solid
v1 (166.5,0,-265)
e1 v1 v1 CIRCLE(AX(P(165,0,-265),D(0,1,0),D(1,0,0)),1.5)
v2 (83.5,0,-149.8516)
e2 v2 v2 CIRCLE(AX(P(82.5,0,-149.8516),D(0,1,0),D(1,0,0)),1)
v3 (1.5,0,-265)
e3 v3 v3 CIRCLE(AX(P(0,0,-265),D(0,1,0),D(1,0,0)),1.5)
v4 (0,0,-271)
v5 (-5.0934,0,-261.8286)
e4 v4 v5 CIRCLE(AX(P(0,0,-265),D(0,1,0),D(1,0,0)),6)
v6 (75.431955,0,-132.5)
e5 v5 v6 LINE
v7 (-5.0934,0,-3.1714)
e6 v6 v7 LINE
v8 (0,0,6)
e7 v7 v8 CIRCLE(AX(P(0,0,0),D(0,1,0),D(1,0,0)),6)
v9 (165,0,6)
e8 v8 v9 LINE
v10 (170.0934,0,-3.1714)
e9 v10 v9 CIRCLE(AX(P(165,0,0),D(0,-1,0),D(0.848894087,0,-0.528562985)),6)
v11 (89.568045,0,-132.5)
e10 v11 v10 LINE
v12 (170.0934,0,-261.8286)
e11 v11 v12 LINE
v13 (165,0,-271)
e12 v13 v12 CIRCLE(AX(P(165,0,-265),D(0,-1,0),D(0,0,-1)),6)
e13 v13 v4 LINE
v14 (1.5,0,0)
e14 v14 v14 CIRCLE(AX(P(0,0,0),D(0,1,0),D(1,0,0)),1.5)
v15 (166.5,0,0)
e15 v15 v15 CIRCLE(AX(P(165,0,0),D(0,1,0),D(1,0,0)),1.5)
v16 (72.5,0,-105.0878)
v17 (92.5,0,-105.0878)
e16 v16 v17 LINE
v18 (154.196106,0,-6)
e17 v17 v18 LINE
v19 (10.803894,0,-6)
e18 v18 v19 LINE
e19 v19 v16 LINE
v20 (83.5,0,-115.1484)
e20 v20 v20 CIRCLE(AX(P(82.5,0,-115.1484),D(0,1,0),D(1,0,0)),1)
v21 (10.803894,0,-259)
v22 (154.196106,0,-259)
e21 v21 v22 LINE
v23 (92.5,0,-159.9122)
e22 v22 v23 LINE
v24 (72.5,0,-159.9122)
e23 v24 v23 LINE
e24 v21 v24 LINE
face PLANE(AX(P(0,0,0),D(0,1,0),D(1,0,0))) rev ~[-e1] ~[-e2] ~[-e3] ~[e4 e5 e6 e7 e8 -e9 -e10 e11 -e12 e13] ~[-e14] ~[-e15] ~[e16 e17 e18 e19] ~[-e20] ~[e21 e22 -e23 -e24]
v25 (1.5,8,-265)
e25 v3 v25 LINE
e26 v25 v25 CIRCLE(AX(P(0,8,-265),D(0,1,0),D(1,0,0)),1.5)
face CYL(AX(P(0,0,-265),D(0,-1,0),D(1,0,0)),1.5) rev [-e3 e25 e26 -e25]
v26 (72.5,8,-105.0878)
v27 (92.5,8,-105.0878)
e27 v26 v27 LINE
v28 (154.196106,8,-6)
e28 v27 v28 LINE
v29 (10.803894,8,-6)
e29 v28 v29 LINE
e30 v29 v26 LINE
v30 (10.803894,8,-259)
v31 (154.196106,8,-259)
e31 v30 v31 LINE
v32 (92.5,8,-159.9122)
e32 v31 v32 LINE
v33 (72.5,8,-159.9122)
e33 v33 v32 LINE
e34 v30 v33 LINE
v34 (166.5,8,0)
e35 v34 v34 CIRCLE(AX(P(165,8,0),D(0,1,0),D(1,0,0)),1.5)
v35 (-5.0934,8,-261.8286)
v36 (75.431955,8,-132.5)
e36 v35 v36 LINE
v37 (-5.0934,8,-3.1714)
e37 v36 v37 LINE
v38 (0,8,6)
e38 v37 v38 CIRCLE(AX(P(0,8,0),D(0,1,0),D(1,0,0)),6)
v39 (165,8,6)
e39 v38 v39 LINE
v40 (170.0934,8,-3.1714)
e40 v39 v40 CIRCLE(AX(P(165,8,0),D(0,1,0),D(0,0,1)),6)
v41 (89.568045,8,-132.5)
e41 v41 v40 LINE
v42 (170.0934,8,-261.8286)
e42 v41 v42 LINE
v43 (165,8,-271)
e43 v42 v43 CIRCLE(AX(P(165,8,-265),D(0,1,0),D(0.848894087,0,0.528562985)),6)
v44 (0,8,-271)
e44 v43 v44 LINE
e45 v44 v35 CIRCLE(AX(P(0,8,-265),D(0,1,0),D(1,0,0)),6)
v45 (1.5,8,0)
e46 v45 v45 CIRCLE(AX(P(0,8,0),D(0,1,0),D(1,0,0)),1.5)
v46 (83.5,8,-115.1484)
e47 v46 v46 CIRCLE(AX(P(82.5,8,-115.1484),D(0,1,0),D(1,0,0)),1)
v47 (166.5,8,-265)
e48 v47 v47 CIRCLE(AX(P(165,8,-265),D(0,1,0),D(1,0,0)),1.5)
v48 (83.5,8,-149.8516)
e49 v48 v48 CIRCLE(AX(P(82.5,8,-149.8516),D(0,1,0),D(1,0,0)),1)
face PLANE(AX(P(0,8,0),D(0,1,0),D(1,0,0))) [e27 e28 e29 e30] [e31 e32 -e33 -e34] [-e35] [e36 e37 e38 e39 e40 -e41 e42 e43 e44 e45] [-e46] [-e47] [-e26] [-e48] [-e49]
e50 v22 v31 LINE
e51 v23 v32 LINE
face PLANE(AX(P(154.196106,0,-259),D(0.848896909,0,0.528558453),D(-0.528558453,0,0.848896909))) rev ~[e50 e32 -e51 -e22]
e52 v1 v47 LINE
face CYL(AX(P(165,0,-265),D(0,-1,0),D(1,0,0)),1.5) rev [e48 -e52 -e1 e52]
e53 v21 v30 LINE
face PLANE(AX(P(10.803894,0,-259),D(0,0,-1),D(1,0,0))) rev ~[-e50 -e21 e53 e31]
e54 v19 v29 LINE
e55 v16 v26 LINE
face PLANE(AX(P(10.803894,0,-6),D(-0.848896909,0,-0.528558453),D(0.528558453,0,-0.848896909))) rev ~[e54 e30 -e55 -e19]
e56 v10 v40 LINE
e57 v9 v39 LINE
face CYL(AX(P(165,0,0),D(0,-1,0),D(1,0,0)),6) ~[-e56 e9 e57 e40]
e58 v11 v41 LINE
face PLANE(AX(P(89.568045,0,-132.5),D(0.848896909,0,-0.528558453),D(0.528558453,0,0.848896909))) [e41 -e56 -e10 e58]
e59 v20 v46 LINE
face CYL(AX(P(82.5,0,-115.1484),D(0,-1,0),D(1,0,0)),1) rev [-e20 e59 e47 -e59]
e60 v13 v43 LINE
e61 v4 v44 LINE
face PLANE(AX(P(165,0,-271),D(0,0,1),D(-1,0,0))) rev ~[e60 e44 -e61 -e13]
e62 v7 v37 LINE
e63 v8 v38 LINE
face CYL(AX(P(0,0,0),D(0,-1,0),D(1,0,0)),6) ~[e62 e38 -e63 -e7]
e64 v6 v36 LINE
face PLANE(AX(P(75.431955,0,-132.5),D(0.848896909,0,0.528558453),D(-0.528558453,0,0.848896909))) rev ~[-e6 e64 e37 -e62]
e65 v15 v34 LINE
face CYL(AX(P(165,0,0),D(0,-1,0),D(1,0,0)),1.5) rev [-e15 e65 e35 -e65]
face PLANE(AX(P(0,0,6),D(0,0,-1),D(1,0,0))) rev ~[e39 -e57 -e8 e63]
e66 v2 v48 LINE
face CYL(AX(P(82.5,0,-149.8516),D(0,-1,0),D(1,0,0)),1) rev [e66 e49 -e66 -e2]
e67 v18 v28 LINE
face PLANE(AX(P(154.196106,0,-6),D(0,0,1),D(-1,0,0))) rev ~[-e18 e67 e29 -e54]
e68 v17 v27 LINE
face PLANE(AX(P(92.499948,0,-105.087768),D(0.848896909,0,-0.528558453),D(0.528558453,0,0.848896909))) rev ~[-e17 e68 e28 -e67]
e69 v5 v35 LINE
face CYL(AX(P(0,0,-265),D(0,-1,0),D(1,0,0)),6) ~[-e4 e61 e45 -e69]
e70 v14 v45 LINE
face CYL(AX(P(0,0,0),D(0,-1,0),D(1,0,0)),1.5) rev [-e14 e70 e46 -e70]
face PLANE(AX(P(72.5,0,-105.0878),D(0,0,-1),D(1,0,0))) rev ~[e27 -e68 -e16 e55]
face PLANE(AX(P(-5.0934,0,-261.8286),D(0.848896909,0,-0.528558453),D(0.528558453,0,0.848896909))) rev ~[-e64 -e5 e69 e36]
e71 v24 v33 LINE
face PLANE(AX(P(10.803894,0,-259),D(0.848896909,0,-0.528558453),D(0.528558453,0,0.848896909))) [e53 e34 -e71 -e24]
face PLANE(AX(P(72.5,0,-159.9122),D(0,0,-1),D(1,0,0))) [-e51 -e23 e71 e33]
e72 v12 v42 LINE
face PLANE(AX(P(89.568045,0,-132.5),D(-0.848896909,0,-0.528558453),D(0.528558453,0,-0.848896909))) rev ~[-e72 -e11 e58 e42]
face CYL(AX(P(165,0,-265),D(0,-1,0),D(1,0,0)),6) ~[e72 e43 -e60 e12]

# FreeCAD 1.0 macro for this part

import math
import FreeCAD as App
import Part
import Sketcher

V = App.Vector

doc = App.newDocument("Part")
body = doc.addObject("PartDesign::Body", "Body")

sketch1 = body.newObject("Sketcher::SketchObject", "Sketch")
sketch1.AttachmentSupport = (doc.getObject("XZ_Plane"), [""])
sketch1.MapMode = "FlatFace"
sketch1.addGeometry(Part.ArcOfCircle(Part.Circle(V(0, 0, 0), V(0, 0, 1), 6), math.radians(90), math.radians(211.908413)), False)
sketch1.addGeometry(Part.LineSegment(V(0, 6, 0), V(165, 6, 0)), False)
sketch1.addGeometry(Part.ArcOfCircle(Part.Circle(V(165, 0, 0), V(0, 0, 1), 6), math.radians(-31.908413), math.radians(90)), False)
sketch1.addGeometry(Part.LineSegment(V(170.0934, -3.1714, 0), V(89.568045, -132.5, 0)), False)
sketch1.addGeometry(Part.LineSegment(V(89.568045, -132.5, 0), V(170.0934, -261.8286, 0)), False)
sketch1.addGeometry(Part.ArcOfCircle(Part.Circle(V(165, -265, 0), V(0, 0, 1), 6), math.radians(-90), math.radians(31.908413)), False)
sketch1.addGeometry(Part.LineSegment(V(165, -271, 0), V(0, -271, 0)), False)
sketch1.addGeometry(Part.ArcOfCircle(Part.Circle(V(0, -265, 0), V(0, 0, 1), 6), math.radians(148.091587), math.radians(270)), False)
sketch1.addGeometry(Part.LineSegment(V(-5.0934, -261.8286, 0), V(75.431955, -132.5, 0)), False)
sketch1.addGeometry(Part.LineSegment(V(75.431955, -132.5, 0), V(-5.0934, -3.1714, 0)), False)
sketch1.addGeometry(Part.Circle(V(0, 0, 0), V(0, 0, 1), 1.5), False)
sketch1.addGeometry(Part.LineSegment(V(154.196106, -6, 0), V(10.803894, -6, 0)), False)
sketch1.addGeometry(Part.LineSegment(V(10.803894, -6, 0), V(72.500052, -105.087768, 0)), False)
sketch1.addGeometry(Part.LineSegment(V(72.5, -105.0878, 0), V(92.5, -105.0878, 0)), False)
sketch1.addGeometry(Part.LineSegment(V(92.499948, -105.087768, 0), V(154.196106, -6, 0)), False)
sketch1.addGeometry(Part.Circle(V(165, 0, 0), V(0, 0, 1), 1.5), False)
sketch1.addGeometry(Part.Circle(V(82.5, -115.1484, 0), V(0, 0, 1), 1), False)
sketch1.addGeometry(Part.LineSegment(V(72.500052, -159.912232, 0), V(10.803894, -259, 0)), False)
sketch1.addGeometry(Part.LineSegment(V(10.803894, -259, 0), V(154.196106, -259, 0)), False)
sketch1.addGeometry(Part.LineSegment(V(154.196106, -259, 0), V(92.499948, -159.912232, 0)), False)
sketch1.addGeometry(Part.LineSegment(V(92.5, -159.9122, 0), V(72.5, -159.9122, 0)), False)
sketch1.addGeometry(Part.Circle(V(0, -265, 0), V(0, 0, 1), 1.5), False)
sketch1.addGeometry(Part.Circle(V(82.5, -149.8516, 0), V(0, 0, 1), 1), False)
sketch1.addGeometry(Part.Circle(V(165, -265, 0), V(0, 0, 1), 1.5), False)
sketch1.addConstraint(Sketcher.Constraint("Tangent", 0, 1, 1, 1))
sketch1.addConstraint(Sketcher.Constraint("Tangent", 1, 2, 2, 2))
sketch1.addConstraint(Sketcher.Constraint("Tangent", 2, 1, 3, 1))
sketch1.addConstraint(Sketcher.Constraint("Coincident", 3, 2, 4, 1))
sketch1.addConstraint(Sketcher.Constraint("Tangent", 4, 2, 5, 2))
sketch1.addConstraint(Sketcher.Constraint("Tangent", 5, 1, 6, 1))
sketch1.addConstraint(Sketcher.Constraint("Tangent", 6, 2, 7, 2))
sketch1.addConstraint(Sketcher.Constraint("Tangent", 7, 1, 8, 1))
sketch1.addConstraint(Sketcher.Constraint("Coincident", 8, 2, 9, 1))
sketch1.addConstraint(Sketcher.Constraint("Tangent", 9, 2, 0, 2))
sketch1.addConstraint(Sketcher.Constraint("Coincident", 11, 2, 12, 1))
sketch1.addConstraint(Sketcher.Constraint("Coincident", 12, 2, 13, 1))
sketch1.addConstraint(Sketcher.Constraint("Coincident", 13, 2, 14, 1))
sketch1.addConstraint(Sketcher.Constraint("Coincident", 14, 2, 11, 1))
sketch1.addConstraint(Sketcher.Constraint("Coincident", 17, 2, 18, 1))
sketch1.addConstraint(Sketcher.Constraint("Coincident", 18, 2, 19, 1))
sketch1.addConstraint(Sketcher.Constraint("Coincident", 19, 2, 20, 1))
sketch1.addConstraint(Sketcher.Constraint("Coincident", 20, 2, 17, 1))
sketch1.addConstraint(Sketcher.Constraint("Horizontal", 1))
sketch1.addConstraint(Sketcher.Constraint("Horizontal", 6))
sketch1.addConstraint(Sketcher.Constraint("Horizontal", 11))
sketch1.addConstraint(Sketcher.Constraint("Horizontal", 13))
sketch1.addConstraint(Sketcher.Constraint("Horizontal", 18))
sketch1.addConstraint(Sketcher.Constraint("Horizontal", 20))
sketch1.addConstraint(Sketcher.Constraint("Coincident", 0, 3, -1, 1))
sketch1.addConstraint(Sketcher.Constraint("Coincident", 10, 3, -1, 1))
sketch1.addConstraint(Sketcher.Constraint("Coincident", 15, 3, 2, 3))
sketch1.addConstraint(Sketcher.Constraint("Coincident", 21, 3, 7, 3))
sketch1.addConstraint(Sketcher.Constraint("Coincident", 23, 3, 5, 3))
sketch1.addConstraint(Sketcher.Constraint("Equal", 0, 2))
sketch1.addConstraint(Sketcher.Constraint("Equal", 2, 5))
sketch1.addConstraint(Sketcher.Constraint("Equal", 5, 7))
sketch1.addConstraint(Sketcher.Constraint("Equal", 10, 15))
sketch1.addConstraint(Sketcher.Constraint("Equal", 15, 21))
sketch1.addConstraint(Sketcher.Constraint("Equal", 16, 22))
sketch1.addConstraint(Sketcher.Constraint("Equal", 21, 23))
sketch1.addConstraint(Sketcher.Constraint("PointOnObject", 7, 3, -2))
sketch1.addConstraint(Sketcher.Constraint("Parallel", 3, 8))
sketch1.addConstraint(Sketcher.Constraint("Parallel", 4, 9))
sketch1.addConstraint(Sketcher.Constraint("Parallel", 9, 12))
sketch1.addConstraint(Sketcher.Constraint("Parallel", 8, 14))
sketch1.addConstraint(Sketcher.Constraint("Parallel", 14, 17))
sketch1.addConstraint(Sketcher.Constraint("Parallel", 12, 19))
sketch1.addConstraint(Sketcher.Constraint("Horizontal", 4, 2, 7, 1))
sketch1.addConstraint(Sketcher.Constraint("Horizontal", 3, 2, 8, 2))
sketch1.addConstraint(Sketcher.Constraint("Vertical", 16, 3, 22, 3))
sketch1.addConstraint(Sketcher.Constraint("Vertical", 11, 2, 17, 2))
sketch1.addConstraint(Sketcher.Constraint("Vertical", 14, 2, 18, 2))
sketch1.addConstraint(Sketcher.Constraint("Vertical", 13, 2, 19, 2))
sketch1.addConstraint(Sketcher.Constraint("Diameter", 10, 3.0))
sketch1.addConstraint(Sketcher.Constraint("Diameter", 16, 2.0))
sketch1.addConstraint(Sketcher.Constraint("Radius", 0, 6.0))
sketch1.addConstraint(Sketcher.Constraint("DistanceX", 1, 1, 1, 2, 165.0))
sketch1.addConstraint(Sketcher.Constraint("DistanceX", 13, 1, 13, 2, 20.0))
sketch1.addConstraint(Sketcher.Constraint("DistanceY", 5, 3, -1, 1, 265.0))
sketch1.addConstraint(Sketcher.Constraint("DistanceY", 11, 2, -1, 1, 6.0))
sketch1.addConstraint(Sketcher.Constraint("DistanceY", 7, 3, 17, 2, 6.0))
sketch1.addConstraint(Sketcher.Constraint("DistanceX", 12, 2, 16, 3, 10.0))
sketch1.addConstraint(Sketcher.Constraint("DistanceX", -1, 1, 16, 3, 82.5))
sketch1.addConstraint(Sketcher.Constraint("Distance", 3, 152.349))
sketch1.addConstraint(Sketcher.Constraint("DistanceX", 11, 2, 11, 1, 143.3922))
sketch1.addConstraint(Sketcher.Constraint("DistanceY", 16, 3, 2, 1, 111.977))
sketch1.addConstraint(Sketcher.Constraint("DistanceY", 4, 2, 22, 3, 111.977))
pad1 = body.newObject("PartDesign::Pad", "Pad")
pad1.Profile = sketch1
pad1.Length = 8
pad1.Reversed = True

doc.recompute()
